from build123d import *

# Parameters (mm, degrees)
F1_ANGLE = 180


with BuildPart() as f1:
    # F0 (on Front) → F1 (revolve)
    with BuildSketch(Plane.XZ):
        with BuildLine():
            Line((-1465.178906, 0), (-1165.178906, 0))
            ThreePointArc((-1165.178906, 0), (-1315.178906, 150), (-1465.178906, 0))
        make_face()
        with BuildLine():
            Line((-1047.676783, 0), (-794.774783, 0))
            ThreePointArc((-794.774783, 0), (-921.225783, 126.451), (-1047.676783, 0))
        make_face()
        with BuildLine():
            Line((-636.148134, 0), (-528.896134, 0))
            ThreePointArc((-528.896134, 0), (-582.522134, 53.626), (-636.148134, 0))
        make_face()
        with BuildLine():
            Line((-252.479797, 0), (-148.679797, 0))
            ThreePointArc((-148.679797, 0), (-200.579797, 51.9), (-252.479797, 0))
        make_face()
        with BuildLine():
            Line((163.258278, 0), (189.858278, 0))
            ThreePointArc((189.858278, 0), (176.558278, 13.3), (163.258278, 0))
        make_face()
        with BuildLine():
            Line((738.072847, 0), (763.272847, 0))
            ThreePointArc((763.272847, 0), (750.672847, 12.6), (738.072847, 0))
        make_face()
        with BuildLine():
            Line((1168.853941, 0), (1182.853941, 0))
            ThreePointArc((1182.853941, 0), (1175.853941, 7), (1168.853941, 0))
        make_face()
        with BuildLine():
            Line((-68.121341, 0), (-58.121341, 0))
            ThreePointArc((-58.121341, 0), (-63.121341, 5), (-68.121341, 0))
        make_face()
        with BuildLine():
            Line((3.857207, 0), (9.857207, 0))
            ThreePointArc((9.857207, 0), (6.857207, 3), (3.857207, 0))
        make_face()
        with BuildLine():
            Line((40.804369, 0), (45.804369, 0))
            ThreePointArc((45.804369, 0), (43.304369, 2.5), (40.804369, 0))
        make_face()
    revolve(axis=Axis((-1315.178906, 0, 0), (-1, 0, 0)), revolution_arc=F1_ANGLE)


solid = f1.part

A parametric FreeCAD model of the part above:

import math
import FreeCAD as App
import Part
import Sketcher
from FreeCAD import Vector

doc = App.newDocument("Part")
params = doc.addObject("Spreadsheet::Sheet", "Params")
for row, (alias, value) in enumerate([
    ("sketch1_radius", "150 mm"),
    ("sketch1_radius2", "7 mm"),
    ("sketch1_radius3", "5 mm"),
    ("sketch1_radius4", "3 mm"),
    ("sketch1_radius5", "51.9 mm"),
    ("revolution_angle", "180 deg"),
], start=1):
    params.set(f"A{row}", alias)
    params.set(f"B{row}", "=" + value)
    params.setAlias(f"B{row}", alias)

body = doc.addObject("PartDesign::Body", "Body")
body.AllowCompound = True

# Sketch on XZ plane
sketch1 = doc.addObject("Sketcher::SketchObject", "Sketch")
body.addObject(sketch1)
sketch1.AttachmentSupport = (doc.XZ_Plane, [""])
sketch1.MapMode = "FlatFace"
sketch1.addGeometry(Part.LineSegment(Vector(-1465.2, 0, 0), Vector(-1165.2, 0, 0)), False)
sketch1.addGeometry(Part.ArcOfCircle(Part.Circle(Vector(-1315.2, 0, 0), Vector(0, 0, 1), 150), math.radians(0), math.radians(180)), False)
sketch1.addGeometry(Part.LineSegment(Vector(-1047.7, 0, 0), Vector(-794.8, 0, 0)), False)
sketch1.addGeometry(Part.ArcOfCircle(Part.Circle(Vector(-921.2, 0, 0), Vector(0, 0, 1), 126.5), math.radians(0), math.radians(180)), False)
sketch1.addGeometry(Part.LineSegment(Vector(-636.1, 0, 0), Vector(-528.9, 0, 0)), False)
sketch1.addGeometry(Part.ArcOfCircle(Part.Circle(Vector(-582.5, 0, 0), Vector(0, 0, 1), 53.6), math.radians(0), math.radians(180)), False)
sketch1.addGeometry(Part.LineSegment(Vector(-252.5, 0, 0), Vector(-148.7, 0, 0)), False)
sketch1.addGeometry(Part.ArcOfCircle(Part.Circle(Vector(-200.6, 0, 0), Vector(0, 0, 1), 51.9), math.radians(0), math.radians(180)), False)
sketch1.addGeometry(Part.LineSegment(Vector(163.3, 0, 0), Vector(189.9, 0, 0)), False)
sketch1.addGeometry(Part.ArcOfCircle(Part.Circle(Vector(176.6, 0, 0), Vector(0, 0, 1), 13.3), math.radians(0), math.radians(180)), False)
sketch1.addGeometry(Part.LineSegment(Vector(738.1, 0, 0), Vector(763.3, 0, 0)), False)
sketch1.addGeometry(Part.ArcOfCircle(Part.Circle(Vector(750.7, 0, 0), Vector(0, 0, 1), 12.6), math.radians(0), math.radians(180)), False)
sketch1.addGeometry(Part.LineSegment(Vector(1168.9, 0, 0), Vector(1182.9, 0, 0)), False)
sketch1.addGeometry(Part.ArcOfCircle(Part.Circle(Vector(1175.9, 0, 0), Vector(0, 0, 1), 7), math.radians(0), math.radians(180)), False)
sketch1.addGeometry(Part.LineSegment(Vector(-68.1, 0, 0), Vector(-58.1, 0, 0)), False)
sketch1.addGeometry(Part.ArcOfCircle(Part.Circle(Vector(-63.1, 0, 0), Vector(0, 0, 1), 5), math.radians(0), math.radians(180)), False)
sketch1.addGeometry(Part.LineSegment(Vector(3.9, 0, 0), Vector(9.9, 0, 0)), False)
sketch1.addGeometry(Part.ArcOfCircle(Part.Circle(Vector(6.9, 0, 0), Vector(0, 0, 1), 3), math.radians(0), math.radians(180)), False)
sketch1.addGeometry(Part.LineSegment(Vector(40.8, 0, 0), Vector(45.8, 0, 0)), False)
sketch1.addGeometry(Part.ArcOfCircle(Part.Circle(Vector(43.3, 0, 0), Vector(0, 0, 1), 2.5), math.radians(0), math.radians(180)), False)
sketch1.addConstraint(Sketcher.Constraint("Coincident", 0, 1, 1, 2))
sketch1.addConstraint(Sketcher.Constraint("Coincident", 1, 1, 0, 2))
sketch1.addConstraint(Sketcher.Constraint("Coincident", 2, 1, 3, 2))
sketch1.addConstraint(Sketcher.Constraint("Coincident", 3, 1, 2, 2))
sketch1.addConstraint(Sketcher.Constraint("Coincident", 4, 1, 5, 2))
sketch1.addConstraint(Sketcher.Constraint("Coincident", 5, 1, 4, 2))
sketch1.addConstraint(Sketcher.Constraint("Coincident", 6, 1, 7, 2))
sketch1.addConstraint(Sketcher.Constraint("Coincident", 7, 1, 6, 2))
sketch1.addConstraint(Sketcher.Constraint("Coincident", 8, 1, 9, 2))
sketch1.addConstraint(Sketcher.Constraint("Coincident", 9, 1, 8, 2))
sketch1.addConstraint(Sketcher.Constraint("Coincident", 10, 1, 11, 2))
sketch1.addConstraint(Sketcher.Constraint("Coincident", 11, 1, 10, 2))
sketch1.addConstraint(Sketcher.Constraint("Coincident", 12, 1, 13, 2))
sketch1.addConstraint(Sketcher.Constraint("Coincident", 13, 1, 12, 2))
sketch1.addConstraint(Sketcher.Constraint("Coincident", 14, 1, 15, 2))
sketch1.addConstraint(Sketcher.Constraint("Coincident", 15, 1, 14, 2))
sketch1.addConstraint(Sketcher.Constraint("Coincident", 16, 1, 17, 2))
sketch1.addConstraint(Sketcher.Constraint("Coincident", 17, 1, 16, 2))
sketch1.addConstraint(Sketcher.Constraint("Coincident", 18, 1, 19, 2))
sketch1.addConstraint(Sketcher.Constraint("Coincident", 19, 1, 18, 2))
sketch1.addConstraint(Sketcher.Constraint("Horizontal", 0))
sketch1.addConstraint(Sketcher.Constraint("Horizontal", 2))
sketch1.addConstraint(Sketcher.Constraint("Horizontal", 4))
sketch1.addConstraint(Sketcher.Constraint("Horizontal", 6))
sketch1.addConstraint(Sketcher.Constraint("Horizontal", 8))
sketch1.addConstraint(Sketcher.Constraint("Horizontal", 10))
sketch1.addConstraint(Sketcher.Constraint("Horizontal", 12))
sketch1.addConstraint(Sketcher.Constraint("Horizontal", 14))
sketch1.addConstraint(Sketcher.Constraint("Horizontal", 16))
sketch1.addConstraint(Sketcher.Constraint("Horizontal", 18))
sketch1.addConstraint(Sketcher.Constraint("PointOnObject", 1, 3, -1))
sketch1.addConstraint(Sketcher.Constraint("PointOnObject", 3, 3, -1))
sketch1.addConstraint(Sketcher.Constraint("PointOnObject", 5, 3, -1))
sketch1.addConstraint(Sketcher.Constraint("PointOnObject", 7, 3, -1))
sketch1.addConstraint(Sketcher.Constraint("PointOnObject", 9, 3, -1))
sketch1.addConstraint(Sketcher.Constraint("PointOnObject", 11, 3, -1))
sketch1.addConstraint(Sketcher.Constraint("PointOnObject", 13, 3, -1))
sketch1.addConstraint(Sketcher.Constraint("PointOnObject", 15, 3, -1))
sketch1.addConstraint(Sketcher.Constraint("PointOnObject", 17, 3, -1))
sketch1.addConstraint(Sketcher.Constraint("PointOnObject", 19, 3, -1))
sketch1.addConstraint(Sketcher.Constraint("PointOnObject", 0, 1, -1))
sketch1.addConstraint(Sketcher.Constraint("PointOnObject", 2, 1, -1))
sketch1.addConstraint(Sketcher.Constraint("PointOnObject", 4, 1, -1))
sketch1.addConstraint(Sketcher.Constraint("PointOnObject", 6, 1, -1))
sketch1.addConstraint(Sketcher.Constraint("PointOnObject", 8, 1, -1))
sketch1.addConstraint(Sketcher.Constraint("PointOnObject", 10, 1, -1))
sketch1.addConstraint(Sketcher.Constraint("PointOnObject", 12, 1, -1))
sketch1.addConstraint(Sketcher.Constraint("PointOnObject", 14, 1, -1))
sketch1.addConstraint(Sketcher.Constraint("PointOnObject", 16, 1, -1))
sketch1.addConstraint(Sketcher.Constraint("PointOnObject", 18, 1, -1))
sketch1.addConstraint(Sketcher.Constraint("Radius", 1, 150.0))
sketch1.addConstraint(Sketcher.Constraint("Radius", 13, 7.0))
sketch1.addConstraint(Sketcher.Constraint("Radius", 15, 5.0))
sketch1.addConstraint(Sketcher.Constraint("Radius", 17, 3.0))
sketch1.addConstraint(Sketcher.Constraint("Radius", 7, 51.9))
sketch1.addConstraint(Sketcher.Constraint("Radius", 9, 13.3))
sketch1.addConstraint(Sketcher.Constraint("Radius", 11, 12.6))
sketch1.addConstraint(Sketcher.Constraint("Radius", 19, 2.5))
sketch1.addConstraint(Sketcher.Constraint("Radius", 3, 126.451))
sketch1.addConstraint(Sketcher.Constraint("Radius", 5, 53.626))
sketch1.addConstraint(Sketcher.Constraint("DistanceX", -1, 1, 9, 3, 176.558278))
sketch1.addConstraint(Sketcher.Constraint("DistanceX", -1, 1, 13, 3, 1175.853941))
sketch1.addConstraint(Sketcher.Constraint("DistanceX", 15, 3, -1, 1, 63.121341))
sketch1.addConstraint(Sketcher.Constraint("DistanceX", -1, 1, 19, 3, 43.304369))
sketch1.addConstraint(Sketcher.Constraint("DistanceX", 3, 3, 5, 3, 338.703649))
sketch1.addConstraint(Sketcher.Constraint("DistanceX", 1, 3, 5, 3, 732.656772))
sketch1.addConstraint(Sketcher.Constraint("DistanceX", 1, 3, 7, 3, 1114.599109))
sketch1.addConstraint(Sketcher.Constraint("DistanceX", 5, 3, 9, 3, 759.080412))
sketch1.addConstraint(Sketcher.Constraint("DistanceX", 9, 3, 11, 3, 574.114569))
sketch1.addConstraint(Sketcher.Constraint("DistanceX", 15, 3, 17, 3, 69.978548))
sketch1.setExpression("Constraints[50]", "Params.sketch1_radius")
sketch1.setExpression("Constraints[51]", "Params.sketch1_radius2")
sketch1.setExpression("Constraints[52]", "Params.sketch1_radius3")
sketch1.setExpression("Constraints[53]", "Params.sketch1_radius4")
sketch1.setExpression("Constraints[54]", "Params.sketch1_radius5")
revolution = doc.addObject("PartDesign::Revolution", "Revolution")
body.addObject(revolution)
revolution.Profile = sketch1
revolution.ReferenceAxis = (sketch1, ["H_Axis"])
revolution.setExpression("Angle", "Params.revolution_angle")
revolution.Reversed = True

doc.recompute()
